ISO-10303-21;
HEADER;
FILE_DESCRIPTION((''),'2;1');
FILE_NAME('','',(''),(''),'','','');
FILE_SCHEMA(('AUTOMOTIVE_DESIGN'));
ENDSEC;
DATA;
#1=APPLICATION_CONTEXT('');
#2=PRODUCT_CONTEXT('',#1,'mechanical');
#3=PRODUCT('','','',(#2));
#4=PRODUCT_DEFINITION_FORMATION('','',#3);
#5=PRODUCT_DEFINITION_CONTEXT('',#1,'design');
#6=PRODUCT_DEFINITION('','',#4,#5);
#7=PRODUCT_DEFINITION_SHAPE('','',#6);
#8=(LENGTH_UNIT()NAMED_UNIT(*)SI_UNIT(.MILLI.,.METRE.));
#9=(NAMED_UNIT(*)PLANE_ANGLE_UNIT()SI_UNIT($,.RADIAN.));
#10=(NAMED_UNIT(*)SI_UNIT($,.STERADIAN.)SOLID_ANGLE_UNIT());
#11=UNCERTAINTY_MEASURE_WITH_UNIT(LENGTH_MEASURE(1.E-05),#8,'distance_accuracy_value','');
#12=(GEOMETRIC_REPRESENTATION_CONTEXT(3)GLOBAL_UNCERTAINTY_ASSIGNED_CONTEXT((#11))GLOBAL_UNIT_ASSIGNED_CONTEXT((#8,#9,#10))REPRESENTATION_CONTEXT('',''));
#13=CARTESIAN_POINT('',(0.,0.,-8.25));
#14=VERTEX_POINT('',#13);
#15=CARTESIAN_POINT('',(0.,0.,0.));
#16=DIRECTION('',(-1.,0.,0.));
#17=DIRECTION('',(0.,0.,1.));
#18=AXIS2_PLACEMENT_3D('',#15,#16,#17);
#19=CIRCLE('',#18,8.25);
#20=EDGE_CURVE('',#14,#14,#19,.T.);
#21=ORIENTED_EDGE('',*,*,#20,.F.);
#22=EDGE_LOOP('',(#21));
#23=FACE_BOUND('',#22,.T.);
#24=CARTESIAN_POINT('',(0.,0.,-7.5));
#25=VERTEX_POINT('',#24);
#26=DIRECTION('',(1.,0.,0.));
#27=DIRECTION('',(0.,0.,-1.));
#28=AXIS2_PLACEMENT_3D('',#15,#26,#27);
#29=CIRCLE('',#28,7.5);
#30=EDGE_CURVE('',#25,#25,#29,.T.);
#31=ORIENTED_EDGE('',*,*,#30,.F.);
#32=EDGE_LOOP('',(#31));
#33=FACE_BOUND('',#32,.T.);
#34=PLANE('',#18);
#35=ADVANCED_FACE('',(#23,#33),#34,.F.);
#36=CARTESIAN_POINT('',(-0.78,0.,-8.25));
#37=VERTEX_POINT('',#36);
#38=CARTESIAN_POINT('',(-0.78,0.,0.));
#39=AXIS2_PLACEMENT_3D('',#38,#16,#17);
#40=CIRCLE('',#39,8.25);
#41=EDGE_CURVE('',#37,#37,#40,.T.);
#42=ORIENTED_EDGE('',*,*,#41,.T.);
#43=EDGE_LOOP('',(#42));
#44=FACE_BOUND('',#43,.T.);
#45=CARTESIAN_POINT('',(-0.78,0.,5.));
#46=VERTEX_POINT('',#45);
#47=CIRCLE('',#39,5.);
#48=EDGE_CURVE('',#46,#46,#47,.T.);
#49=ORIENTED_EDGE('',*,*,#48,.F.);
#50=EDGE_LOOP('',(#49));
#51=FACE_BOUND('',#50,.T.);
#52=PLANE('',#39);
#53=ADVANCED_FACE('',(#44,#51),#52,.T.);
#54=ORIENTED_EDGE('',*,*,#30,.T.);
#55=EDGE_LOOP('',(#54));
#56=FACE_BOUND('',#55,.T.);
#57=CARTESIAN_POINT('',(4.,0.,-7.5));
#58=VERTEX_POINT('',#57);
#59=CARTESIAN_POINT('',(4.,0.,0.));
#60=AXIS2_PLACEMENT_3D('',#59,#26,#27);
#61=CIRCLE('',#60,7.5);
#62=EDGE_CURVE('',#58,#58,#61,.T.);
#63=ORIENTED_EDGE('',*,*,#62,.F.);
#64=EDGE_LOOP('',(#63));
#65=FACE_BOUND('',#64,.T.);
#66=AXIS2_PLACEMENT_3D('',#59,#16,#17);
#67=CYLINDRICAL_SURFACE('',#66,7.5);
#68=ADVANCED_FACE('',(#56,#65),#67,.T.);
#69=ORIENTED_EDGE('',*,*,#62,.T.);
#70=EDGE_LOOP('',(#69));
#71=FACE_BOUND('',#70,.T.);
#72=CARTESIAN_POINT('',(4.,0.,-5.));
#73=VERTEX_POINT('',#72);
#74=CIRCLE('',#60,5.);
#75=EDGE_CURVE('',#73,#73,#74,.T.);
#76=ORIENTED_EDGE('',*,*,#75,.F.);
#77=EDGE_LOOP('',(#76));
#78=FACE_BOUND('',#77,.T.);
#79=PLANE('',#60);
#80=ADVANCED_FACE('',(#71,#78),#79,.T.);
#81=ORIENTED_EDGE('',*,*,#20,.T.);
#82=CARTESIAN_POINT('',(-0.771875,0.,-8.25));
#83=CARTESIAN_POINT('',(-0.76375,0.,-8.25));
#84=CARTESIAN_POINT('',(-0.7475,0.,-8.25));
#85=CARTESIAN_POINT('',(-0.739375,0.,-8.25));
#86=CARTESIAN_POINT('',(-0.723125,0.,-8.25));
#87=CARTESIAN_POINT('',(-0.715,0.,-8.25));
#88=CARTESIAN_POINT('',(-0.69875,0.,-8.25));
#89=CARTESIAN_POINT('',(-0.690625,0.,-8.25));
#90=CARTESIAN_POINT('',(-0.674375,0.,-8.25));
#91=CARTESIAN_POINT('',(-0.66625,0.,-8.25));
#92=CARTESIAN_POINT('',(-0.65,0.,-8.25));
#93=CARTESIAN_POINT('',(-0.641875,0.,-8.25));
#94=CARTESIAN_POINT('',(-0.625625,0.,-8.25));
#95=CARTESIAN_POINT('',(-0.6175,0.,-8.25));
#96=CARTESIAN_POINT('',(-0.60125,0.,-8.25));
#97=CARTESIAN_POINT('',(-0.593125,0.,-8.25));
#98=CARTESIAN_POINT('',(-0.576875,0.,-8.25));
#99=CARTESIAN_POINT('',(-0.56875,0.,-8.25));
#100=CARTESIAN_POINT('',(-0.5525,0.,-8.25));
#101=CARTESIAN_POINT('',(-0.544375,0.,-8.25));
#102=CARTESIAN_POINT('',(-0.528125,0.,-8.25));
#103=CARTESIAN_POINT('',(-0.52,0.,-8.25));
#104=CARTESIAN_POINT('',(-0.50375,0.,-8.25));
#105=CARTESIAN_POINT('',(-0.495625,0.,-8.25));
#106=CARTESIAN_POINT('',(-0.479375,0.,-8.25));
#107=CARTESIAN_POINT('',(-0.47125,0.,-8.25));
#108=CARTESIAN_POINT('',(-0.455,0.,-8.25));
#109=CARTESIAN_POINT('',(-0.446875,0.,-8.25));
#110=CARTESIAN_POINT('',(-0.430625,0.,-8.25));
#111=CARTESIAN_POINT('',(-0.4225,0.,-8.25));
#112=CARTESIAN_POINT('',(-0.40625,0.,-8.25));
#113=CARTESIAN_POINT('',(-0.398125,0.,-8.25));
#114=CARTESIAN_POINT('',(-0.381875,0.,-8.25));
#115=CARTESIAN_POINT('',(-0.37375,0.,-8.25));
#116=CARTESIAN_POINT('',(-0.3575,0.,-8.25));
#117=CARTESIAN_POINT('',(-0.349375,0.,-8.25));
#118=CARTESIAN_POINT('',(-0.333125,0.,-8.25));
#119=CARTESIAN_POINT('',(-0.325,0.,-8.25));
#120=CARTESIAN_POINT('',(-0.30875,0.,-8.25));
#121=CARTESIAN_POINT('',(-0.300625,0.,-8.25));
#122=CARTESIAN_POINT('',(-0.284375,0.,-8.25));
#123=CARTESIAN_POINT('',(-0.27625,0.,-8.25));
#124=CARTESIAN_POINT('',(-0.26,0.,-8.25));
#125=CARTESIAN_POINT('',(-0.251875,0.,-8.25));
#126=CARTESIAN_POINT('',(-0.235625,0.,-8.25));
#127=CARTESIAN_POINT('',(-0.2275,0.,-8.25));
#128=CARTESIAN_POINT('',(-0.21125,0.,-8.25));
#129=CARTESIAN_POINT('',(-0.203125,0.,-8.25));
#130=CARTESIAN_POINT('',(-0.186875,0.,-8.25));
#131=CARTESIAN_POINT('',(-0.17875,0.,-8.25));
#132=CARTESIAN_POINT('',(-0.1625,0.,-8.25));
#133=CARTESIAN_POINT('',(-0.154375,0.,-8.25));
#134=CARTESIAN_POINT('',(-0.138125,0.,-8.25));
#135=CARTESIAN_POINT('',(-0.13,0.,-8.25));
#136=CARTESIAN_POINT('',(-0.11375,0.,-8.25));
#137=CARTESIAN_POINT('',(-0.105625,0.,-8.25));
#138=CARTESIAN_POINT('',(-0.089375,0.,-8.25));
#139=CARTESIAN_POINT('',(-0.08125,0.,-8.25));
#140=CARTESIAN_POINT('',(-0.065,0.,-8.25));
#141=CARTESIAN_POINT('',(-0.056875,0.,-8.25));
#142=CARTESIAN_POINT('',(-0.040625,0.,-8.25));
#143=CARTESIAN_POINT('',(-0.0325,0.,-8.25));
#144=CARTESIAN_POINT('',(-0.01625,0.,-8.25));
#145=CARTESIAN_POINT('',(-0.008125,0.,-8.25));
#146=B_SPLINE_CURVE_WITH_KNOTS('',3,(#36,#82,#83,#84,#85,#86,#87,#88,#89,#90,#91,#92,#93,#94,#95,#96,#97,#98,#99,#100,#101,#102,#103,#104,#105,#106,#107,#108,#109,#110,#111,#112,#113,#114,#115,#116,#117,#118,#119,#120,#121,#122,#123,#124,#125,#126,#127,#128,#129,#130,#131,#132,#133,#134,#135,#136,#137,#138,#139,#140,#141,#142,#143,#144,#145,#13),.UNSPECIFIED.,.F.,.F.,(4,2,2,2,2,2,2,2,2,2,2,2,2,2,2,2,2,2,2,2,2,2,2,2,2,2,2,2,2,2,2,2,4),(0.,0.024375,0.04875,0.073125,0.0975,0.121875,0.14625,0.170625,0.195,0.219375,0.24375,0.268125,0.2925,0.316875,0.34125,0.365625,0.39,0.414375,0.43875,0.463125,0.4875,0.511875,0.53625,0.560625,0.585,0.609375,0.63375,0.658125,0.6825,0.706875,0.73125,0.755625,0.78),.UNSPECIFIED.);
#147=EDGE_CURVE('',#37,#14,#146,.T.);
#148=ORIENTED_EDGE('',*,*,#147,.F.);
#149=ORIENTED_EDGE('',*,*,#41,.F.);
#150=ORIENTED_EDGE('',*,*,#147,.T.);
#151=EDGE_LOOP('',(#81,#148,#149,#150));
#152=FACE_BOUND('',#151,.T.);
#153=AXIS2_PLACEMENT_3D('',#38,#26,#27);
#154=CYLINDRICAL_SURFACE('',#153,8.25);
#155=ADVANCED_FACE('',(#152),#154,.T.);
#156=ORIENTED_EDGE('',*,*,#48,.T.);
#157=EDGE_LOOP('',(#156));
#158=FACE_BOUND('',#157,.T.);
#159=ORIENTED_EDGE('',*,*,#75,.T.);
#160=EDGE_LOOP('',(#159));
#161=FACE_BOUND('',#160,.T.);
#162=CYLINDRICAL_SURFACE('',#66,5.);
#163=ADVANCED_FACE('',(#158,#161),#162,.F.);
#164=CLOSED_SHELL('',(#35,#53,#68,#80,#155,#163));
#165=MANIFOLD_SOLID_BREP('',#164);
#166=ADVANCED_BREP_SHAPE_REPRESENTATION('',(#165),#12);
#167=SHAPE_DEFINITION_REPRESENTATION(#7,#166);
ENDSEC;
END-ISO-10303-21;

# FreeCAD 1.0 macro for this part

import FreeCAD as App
import Part
import Sketcher

V = App.Vector
Q = App.Units.Quantity

doc = App.newDocument("Part")
body = doc.addObject("PartDesign::Body", "Body")

# Sketch on YZ plane
sketch1 = body.newObject("Sketcher::SketchObject", "Sketch")
sketch1.AttachmentSupport = (doc.getObject("YZ_Plane"), [""])
sketch1.MapMode = "FlatFace"
sketch1.addGeometry(Part.Circle(V(0, 0, 0), V(0, 0, 1), 7.5), False)
sketch1.addGeometry(Part.Circle(V(0, 0, 0), V(0, 0, 1), 5), False)
sketch1.addConstraint(Sketcher.Constraint("Coincident", 0, 3, -1, 1))
sketch1.addConstraint(Sketcher.Constraint("Coincident", 1, 3, -1, 1))
sketch1.addConstraint(Sketcher.Constraint("Diameter", 0, Q("15 mm")))
sketch1.addConstraint(Sketcher.Constraint("Diameter", 1, Q("10 mm")))
pad1 = body.newObject("PartDesign::Pad", "Pad")
pad1.Profile = sketch1
pad1.Length = 4

# Sketch on YZ plane
sketch2 = body.newObject("Sketcher::SketchObject", "Sketch001")
sketch2.AttachmentSupport = (doc.getObject("YZ_Plane"), [""])
sketch2.MapMode = "FlatFace"
sketch2.AttachmentOffset = App.Placement(V(0, 0, -0.78), App.Rotation())
sketch2.addGeometry(Part.Circle(V(0, 0, 0), V(0, 0, 1), 8.25), False)
sketch2.addGeometry(Part.Circle(V(0, 0, 0), V(0, 0, 1), 5), False)
sketch2.addConstraint(Sketcher.Constraint("Coincident", 0, 3, -1, 1))
sketch2.addConstraint(Sketcher.Constraint("Coincident", 1, 3, -1, 1))
sketch2.addConstraint(Sketcher.Constraint("Diameter", 1, Q("10 mm")))
sketch2.addConstraint(Sketcher.Constraint("Diameter", 0, Q("16.5 mm")))
pad2 = body.newObject("PartDesign::Pad", "Pad001")
pad2.Profile = sketch2
pad2.Length = 0.78

doc.recompute()
